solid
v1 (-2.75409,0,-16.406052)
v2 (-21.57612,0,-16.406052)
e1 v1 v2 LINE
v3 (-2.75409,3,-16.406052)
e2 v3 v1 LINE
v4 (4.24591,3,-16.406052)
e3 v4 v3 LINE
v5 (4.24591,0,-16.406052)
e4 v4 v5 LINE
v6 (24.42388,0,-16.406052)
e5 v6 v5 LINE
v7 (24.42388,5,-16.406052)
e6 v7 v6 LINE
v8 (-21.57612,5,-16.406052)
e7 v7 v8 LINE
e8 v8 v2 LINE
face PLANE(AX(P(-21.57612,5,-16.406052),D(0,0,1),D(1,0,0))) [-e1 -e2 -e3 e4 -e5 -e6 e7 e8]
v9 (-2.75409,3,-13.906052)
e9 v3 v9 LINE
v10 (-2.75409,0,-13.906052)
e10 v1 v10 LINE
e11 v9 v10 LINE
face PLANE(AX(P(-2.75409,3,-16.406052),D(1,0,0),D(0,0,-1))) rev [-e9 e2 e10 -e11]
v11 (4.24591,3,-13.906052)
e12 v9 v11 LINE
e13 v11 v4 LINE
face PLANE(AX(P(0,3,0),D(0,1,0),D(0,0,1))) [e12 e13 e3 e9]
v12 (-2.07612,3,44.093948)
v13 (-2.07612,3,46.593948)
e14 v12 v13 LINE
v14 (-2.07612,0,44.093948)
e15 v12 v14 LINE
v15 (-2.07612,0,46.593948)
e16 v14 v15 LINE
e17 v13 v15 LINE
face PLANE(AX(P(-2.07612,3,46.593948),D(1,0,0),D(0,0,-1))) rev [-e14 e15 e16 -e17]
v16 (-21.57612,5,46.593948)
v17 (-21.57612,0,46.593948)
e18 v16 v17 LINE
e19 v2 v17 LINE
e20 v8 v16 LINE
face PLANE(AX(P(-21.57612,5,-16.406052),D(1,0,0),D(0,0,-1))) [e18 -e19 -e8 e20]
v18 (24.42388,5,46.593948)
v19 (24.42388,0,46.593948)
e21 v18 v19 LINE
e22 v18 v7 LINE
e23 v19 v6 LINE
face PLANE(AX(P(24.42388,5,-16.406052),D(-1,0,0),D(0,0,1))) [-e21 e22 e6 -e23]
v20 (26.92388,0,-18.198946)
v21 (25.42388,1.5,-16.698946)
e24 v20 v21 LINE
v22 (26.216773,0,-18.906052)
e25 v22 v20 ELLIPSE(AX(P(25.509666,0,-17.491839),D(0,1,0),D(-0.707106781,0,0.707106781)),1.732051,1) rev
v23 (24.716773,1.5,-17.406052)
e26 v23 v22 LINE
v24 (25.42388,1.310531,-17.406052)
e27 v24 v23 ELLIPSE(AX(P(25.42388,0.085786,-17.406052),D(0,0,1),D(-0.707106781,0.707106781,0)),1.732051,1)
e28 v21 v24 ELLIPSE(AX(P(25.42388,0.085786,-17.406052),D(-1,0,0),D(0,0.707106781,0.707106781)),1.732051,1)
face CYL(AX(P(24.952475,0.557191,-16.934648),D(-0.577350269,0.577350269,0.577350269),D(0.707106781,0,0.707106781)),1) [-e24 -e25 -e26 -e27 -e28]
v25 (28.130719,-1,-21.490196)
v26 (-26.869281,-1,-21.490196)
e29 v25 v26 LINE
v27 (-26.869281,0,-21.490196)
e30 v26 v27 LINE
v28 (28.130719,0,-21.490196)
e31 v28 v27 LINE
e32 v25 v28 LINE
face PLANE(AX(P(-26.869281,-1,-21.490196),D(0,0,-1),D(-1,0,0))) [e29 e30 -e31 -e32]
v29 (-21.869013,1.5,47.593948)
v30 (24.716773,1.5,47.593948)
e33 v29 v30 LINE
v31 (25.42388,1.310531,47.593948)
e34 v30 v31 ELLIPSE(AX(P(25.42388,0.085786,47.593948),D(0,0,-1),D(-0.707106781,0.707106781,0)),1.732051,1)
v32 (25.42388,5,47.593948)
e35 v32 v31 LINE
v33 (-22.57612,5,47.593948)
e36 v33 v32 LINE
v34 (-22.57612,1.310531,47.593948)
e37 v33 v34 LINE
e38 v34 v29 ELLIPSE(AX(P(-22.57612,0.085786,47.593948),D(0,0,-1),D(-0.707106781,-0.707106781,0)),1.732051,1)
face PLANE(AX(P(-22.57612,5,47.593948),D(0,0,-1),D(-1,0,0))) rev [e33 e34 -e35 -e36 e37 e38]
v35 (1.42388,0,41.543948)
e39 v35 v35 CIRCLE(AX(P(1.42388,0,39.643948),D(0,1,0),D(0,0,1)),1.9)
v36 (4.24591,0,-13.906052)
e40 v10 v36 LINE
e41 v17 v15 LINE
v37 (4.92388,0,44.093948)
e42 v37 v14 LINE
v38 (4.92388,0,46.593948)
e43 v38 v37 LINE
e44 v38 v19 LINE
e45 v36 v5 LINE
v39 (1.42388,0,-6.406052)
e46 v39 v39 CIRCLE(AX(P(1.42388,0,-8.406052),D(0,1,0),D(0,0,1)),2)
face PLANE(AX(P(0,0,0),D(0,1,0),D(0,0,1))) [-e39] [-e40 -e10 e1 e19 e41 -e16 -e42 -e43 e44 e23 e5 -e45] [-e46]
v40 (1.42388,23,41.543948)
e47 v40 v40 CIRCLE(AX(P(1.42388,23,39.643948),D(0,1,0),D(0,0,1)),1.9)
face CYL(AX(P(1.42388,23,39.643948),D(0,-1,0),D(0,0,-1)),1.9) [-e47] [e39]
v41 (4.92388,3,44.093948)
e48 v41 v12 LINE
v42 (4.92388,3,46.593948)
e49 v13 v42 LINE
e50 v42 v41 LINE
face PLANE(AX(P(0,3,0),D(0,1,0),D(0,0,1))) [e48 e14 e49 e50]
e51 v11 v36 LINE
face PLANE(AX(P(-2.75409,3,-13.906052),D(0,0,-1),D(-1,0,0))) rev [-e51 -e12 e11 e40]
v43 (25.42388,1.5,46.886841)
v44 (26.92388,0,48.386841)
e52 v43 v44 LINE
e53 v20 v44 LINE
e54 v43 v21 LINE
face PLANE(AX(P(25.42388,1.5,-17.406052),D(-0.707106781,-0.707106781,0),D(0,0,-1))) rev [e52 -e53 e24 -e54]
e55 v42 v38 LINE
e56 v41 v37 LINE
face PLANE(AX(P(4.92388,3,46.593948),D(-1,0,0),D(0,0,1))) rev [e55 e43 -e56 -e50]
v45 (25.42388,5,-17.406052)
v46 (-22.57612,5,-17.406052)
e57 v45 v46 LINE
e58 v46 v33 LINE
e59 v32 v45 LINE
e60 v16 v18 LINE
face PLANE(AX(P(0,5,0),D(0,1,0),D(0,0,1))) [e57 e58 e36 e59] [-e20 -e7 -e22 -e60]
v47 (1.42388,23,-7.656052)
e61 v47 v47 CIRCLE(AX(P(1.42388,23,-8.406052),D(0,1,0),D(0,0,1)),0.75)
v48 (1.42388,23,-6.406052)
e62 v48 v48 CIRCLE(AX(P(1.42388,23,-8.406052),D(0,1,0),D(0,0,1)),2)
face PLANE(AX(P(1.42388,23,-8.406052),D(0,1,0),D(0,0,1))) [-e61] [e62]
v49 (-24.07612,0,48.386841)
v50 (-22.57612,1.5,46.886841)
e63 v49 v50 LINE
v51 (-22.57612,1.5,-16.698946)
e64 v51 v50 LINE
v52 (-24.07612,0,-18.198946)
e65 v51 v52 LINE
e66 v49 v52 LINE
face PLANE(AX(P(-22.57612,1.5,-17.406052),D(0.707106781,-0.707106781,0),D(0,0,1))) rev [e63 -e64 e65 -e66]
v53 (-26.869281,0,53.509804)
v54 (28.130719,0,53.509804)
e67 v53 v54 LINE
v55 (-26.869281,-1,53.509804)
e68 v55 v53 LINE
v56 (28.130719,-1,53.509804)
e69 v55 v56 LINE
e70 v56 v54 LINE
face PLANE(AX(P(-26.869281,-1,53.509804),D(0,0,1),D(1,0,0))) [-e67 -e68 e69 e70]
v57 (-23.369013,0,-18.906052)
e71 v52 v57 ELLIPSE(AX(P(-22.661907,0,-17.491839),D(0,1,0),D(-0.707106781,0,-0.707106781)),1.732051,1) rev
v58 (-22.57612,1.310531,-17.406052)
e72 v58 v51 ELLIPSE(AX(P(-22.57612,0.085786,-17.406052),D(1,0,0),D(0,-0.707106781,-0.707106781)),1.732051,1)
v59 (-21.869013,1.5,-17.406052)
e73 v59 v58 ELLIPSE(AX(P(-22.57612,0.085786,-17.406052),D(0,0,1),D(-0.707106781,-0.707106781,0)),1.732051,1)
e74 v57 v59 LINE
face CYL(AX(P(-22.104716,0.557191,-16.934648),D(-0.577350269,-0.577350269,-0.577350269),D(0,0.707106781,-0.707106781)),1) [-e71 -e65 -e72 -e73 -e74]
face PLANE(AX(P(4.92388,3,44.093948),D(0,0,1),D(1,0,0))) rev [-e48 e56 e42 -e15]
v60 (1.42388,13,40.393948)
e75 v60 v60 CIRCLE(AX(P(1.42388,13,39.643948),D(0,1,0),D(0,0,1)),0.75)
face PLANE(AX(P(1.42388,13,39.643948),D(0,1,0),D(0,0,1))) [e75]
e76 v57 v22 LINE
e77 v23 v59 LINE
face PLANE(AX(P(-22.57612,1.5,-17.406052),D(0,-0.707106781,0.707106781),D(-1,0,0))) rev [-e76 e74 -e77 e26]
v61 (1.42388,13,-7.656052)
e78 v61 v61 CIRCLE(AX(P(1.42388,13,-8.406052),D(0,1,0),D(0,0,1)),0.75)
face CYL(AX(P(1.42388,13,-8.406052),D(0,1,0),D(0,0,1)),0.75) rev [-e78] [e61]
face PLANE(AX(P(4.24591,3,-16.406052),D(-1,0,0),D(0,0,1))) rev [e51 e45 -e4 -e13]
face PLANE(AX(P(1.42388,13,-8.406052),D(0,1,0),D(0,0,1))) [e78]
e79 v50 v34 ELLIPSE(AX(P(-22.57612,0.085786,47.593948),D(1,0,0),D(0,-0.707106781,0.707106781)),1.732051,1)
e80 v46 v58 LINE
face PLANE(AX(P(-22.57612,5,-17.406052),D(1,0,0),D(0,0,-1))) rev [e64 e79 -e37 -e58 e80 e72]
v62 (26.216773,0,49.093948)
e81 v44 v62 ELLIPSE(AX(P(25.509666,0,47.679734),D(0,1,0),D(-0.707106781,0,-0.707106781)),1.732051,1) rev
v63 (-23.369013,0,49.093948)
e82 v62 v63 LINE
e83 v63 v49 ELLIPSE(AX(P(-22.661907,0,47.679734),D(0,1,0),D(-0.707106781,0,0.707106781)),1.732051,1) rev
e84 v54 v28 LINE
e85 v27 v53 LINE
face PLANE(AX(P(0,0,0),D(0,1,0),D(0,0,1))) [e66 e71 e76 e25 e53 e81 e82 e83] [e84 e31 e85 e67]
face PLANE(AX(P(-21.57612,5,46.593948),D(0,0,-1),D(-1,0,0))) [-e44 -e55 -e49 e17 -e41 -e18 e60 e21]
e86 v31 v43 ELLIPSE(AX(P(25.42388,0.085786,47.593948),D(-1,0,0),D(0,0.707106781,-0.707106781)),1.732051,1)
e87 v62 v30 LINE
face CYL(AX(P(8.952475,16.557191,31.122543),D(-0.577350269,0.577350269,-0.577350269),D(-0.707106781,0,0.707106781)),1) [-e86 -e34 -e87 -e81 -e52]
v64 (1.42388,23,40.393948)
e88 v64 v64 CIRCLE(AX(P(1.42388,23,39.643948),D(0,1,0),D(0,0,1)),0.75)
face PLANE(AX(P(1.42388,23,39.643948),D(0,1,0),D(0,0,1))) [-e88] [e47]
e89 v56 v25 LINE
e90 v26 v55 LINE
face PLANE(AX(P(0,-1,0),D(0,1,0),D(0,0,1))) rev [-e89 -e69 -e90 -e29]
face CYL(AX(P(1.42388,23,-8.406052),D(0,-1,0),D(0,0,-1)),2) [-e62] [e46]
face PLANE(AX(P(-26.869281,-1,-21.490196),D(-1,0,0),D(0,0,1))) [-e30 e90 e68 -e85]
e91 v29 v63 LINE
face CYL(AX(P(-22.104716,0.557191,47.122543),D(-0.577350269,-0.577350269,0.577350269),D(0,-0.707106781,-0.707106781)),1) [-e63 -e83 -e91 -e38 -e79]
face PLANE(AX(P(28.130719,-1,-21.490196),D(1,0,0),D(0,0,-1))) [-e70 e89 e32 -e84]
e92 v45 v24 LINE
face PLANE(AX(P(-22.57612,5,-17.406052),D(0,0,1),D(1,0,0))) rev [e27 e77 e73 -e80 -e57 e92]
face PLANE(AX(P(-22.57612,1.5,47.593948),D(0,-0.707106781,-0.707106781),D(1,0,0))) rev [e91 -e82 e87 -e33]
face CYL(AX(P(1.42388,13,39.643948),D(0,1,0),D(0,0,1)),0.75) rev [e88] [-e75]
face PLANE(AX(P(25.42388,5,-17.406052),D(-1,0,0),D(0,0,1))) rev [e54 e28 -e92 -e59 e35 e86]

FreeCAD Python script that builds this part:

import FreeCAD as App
import Part
import Sketcher
from FreeCAD import Vector
Q = App.Units.Quantity


def edges_at(feature, points):
    """Names of the edges that pass closest to the given points."""
    edges = feature.Shape.Edges
    near = lambda p: min(range(len(edges)), key=lambda i: edges[i].distToShape(Part.Vertex(*p))[0])
    return sorted({f"Edge{near(p) + 1}" for p in points})

doc = App.newDocument("Part")
body = doc.addObject("PartDesign::Body", "Body")

sketch1 = doc.addObject("Sketcher::SketchObject", "Sketch")
body.addObject(sketch1)
sketch1.AttachmentSupport = (doc.XZ_Plane, [""])
sketch1.MapMode = "FlatFace"
sketch1.addGeometry(Part.LineSegment(Vector(-27, -21, 0), Vector(-27, 54, 0)), False)
sketch1.addGeometry(Part.LineSegment(Vector(-27, 54, 0), Vector(28, 54, 0)), False)
sketch1.addGeometry(Part.LineSegment(Vector(28, 54, 0), Vector(28, -21, 0)), False)
sketch1.addGeometry(Part.LineSegment(Vector(28, -21, 0), Vector(-27, -21, 0)), False)
sketch1.addConstraint(Sketcher.Constraint("Coincident", 0, 2, 1, 1))
sketch1.addConstraint(Sketcher.Constraint("Coincident", 1, 2, 2, 1))
sketch1.addConstraint(Sketcher.Constraint("Coincident", 2, 2, 3, 1))
sketch1.addConstraint(Sketcher.Constraint("Coincident", 3, 2, 0, 1))
sketch1.addConstraint(Sketcher.Constraint("Vertical", 0))
sketch1.addConstraint(Sketcher.Constraint("Horizontal", 1))
sketch1.addConstraint(Sketcher.Constraint("Vertical", 2))
sketch1.addConstraint(Sketcher.Constraint("Horizontal", 3))
sketch1.addConstraint(Sketcher.Constraint("DistanceX", 1, 1, 1, 2, Q("55 mm")))
sketch1.addConstraint(Sketcher.Constraint("DistanceY", 0, 1, 0, 2, Q("75 mm")))
sketch1.addConstraint(Sketcher.Constraint("DistanceX", 0, 2, -1, 1, Q("26.869281 mm")))
sketch1.addConstraint(Sketcher.Constraint("DistanceY", -1, 1, 0, 2, Q("53.509804 mm")))
pad1 = doc.addObject("PartDesign::Pad", "Pad")
body.addObject(pad1)
pad1.Profile = sketch1
pad1.Length = 1

sketch2 = doc.addObject("Sketcher::SketchObject", "Sketch001")
body.addObject(sketch2)
sketch2.AttachmentSupport = (doc.XZ_Plane, [""])
sketch2.MapMode = "FlatFace"
sketch2.addGeometry(Part.LineSegment(Vector(-23, -17, 0), Vector(-23, 48, 0)), False)
sketch2.addGeometry(Part.LineSegment(Vector(-23, 48, 0), Vector(25, 48, 0)), False)
sketch2.addGeometry(Part.LineSegment(Vector(25, 48, 0), Vector(25, -17, 0)), False)
sketch2.addGeometry(Part.LineSegment(Vector(25, -17, 0), Vector(-23, -17, 0)), False)
sketch2.addGeometry(Part.LineSegment(Vector(24, 47, 0), Vector(-22, 47, 0)), False)
sketch2.addGeometry(Part.LineSegment(Vector(-22, 47, 0), Vector(-22, -16, 0)), False)
sketch2.addGeometry(Part.LineSegment(Vector(-22, -16, 0), Vector(24, -16, 0)), False)
sketch2.addGeometry(Part.LineSegment(Vector(24, -16, 0), Vector(24, 47, 0)), False)
sketch2.addConstraint(Sketcher.Constraint("Coincident", 0, 2, 1, 1))
sketch2.addConstraint(Sketcher.Constraint("Coincident", 1, 2, 2, 1))
sketch2.addConstraint(Sketcher.Constraint("Coincident", 2, 2, 3, 1))
sketch2.addConstraint(Sketcher.Constraint("Coincident", 3, 2, 0, 1))
sketch2.addConstraint(Sketcher.Constraint("Coincident", 4, 2, 5, 1))
sketch2.addConstraint(Sketcher.Constraint("Coincident", 5, 2, 6, 1))
sketch2.addConstraint(Sketcher.Constraint("Coincident", 6, 2, 7, 1))
sketch2.addConstraint(Sketcher.Constraint("Coincident", 7, 2, 4, 1))
sketch2.addConstraint(Sketcher.Constraint("Vertical", 0))
sketch2.addConstraint(Sketcher.Constraint("Horizontal", 1))
sketch2.addConstraint(Sketcher.Constraint("Vertical", 2))
sketch2.addConstraint(Sketcher.Constraint("Horizontal", 3))
sketch2.addConstraint(Sketcher.Constraint("Horizontal", 4))
sketch2.addConstraint(Sketcher.Constraint("Vertical", 5))
sketch2.addConstraint(Sketcher.Constraint("Horizontal", 6))
sketch2.addConstraint(Sketcher.Constraint("Vertical", 7))
sketch2.addConstraint(Sketcher.Constraint("DistanceX", 1, 1, 1, 2, Q("48 mm")))
sketch2.addConstraint(Sketcher.Constraint("DistanceX", 4, 2, 4, 1, Q("46 mm")))
sketch2.addConstraint(Sketcher.Constraint("DistanceY", 0, 1, 0, 2, Q("65 mm")))
sketch2.addConstraint(Sketcher.Constraint("DistanceY", 5, 2, 5, 1, Q("63 mm")))
sketch2.addConstraint(Sketcher.Constraint("DistanceX", 0, 2, 4, 2, Q("1 mm")))
sketch2.addConstraint(Sketcher.Constraint("DistanceY", 4, 2, 0, 2, Q("1 mm")))
sketch2.addConstraint(Sketcher.Constraint("DistanceX", 0, 2, -1, 1, Q("22.57612 mm")))
sketch2.addConstraint(Sketcher.Constraint("DistanceY", -1, 1, 0, 2, Q("47.593948 mm")))
pad2 = doc.addObject("PartDesign::Pad", "Pad001")
body.addObject(pad2)
pad2.Profile = sketch2
pad2.Length = 5
pad2.Reversed = True

sketch3 = doc.addObject("Sketcher::SketchObject", "Sketch002")
body.addObject(sketch3)
sketch3.AttachmentSupport = (doc.XZ_Plane, [""])
sketch3.MapMode = "FlatFace"
sketch3.addGeometry(Part.LineSegment(Vector(-2.1, 44.1, 0), Vector(-2.1, 46.6, 0)), False)
sketch3.addGeometry(Part.LineSegment(Vector(-2.1, 46.6, 0), Vector(4.9, 46.6, 0)), False)
sketch3.addGeometry(Part.LineSegment(Vector(4.9, 46.6, 0), Vector(4.9, 44.1, 0)), False)
sketch3.addGeometry(Part.LineSegment(Vector(4.9, 44.1, 0), Vector(-2.1, 44.1, 0)), False)
sketch3.addGeometry(Part.LineSegment(Vector(-2.8, -16.4, 0), Vector(-2.8, -13.9, 0)), False)
sketch3.addGeometry(Part.LineSegment(Vector(-2.8, -13.9, 0), Vector(4.2, -13.9, 0)), False)
sketch3.addGeometry(Part.LineSegment(Vector(4.2, -13.9, 0), Vector(4.2, -16.4, 0)), False)
sketch3.addGeometry(Part.LineSegment(Vector(4.2, -16.4, 0), Vector(-2.8, -16.4, 0)), False)
sketch3.addConstraint(Sketcher.Constraint("Coincident", 0, 2, 1, 1))
sketch3.addConstraint(Sketcher.Constraint("Coincident", 1, 2, 2, 1))
sketch3.addConstraint(Sketcher.Constraint("Coincident", 2, 2, 3, 1))
sketch3.addConstraint(Sketcher.Constraint("Coincident", 3, 2, 0, 1))
sketch3.addConstraint(Sketcher.Constraint("Coincident", 4, 2, 5, 1))
sketch3.addConstraint(Sketcher.Constraint("Coincident", 5, 2, 6, 1))
sketch3.addConstraint(Sketcher.Constraint("Coincident", 6, 2, 7, 1))
sketch3.addConstraint(Sketcher.Constraint("Coincident", 7, 2, 4, 1))
sketch3.addConstraint(Sketcher.Constraint("Vertical", 0))
sketch3.addConstraint(Sketcher.Constraint("Horizontal", 1))
sketch3.addConstraint(Sketcher.Constraint("Vertical", 2))
sketch3.addConstraint(Sketcher.Constraint("Horizontal", 3))
sketch3.addConstraint(Sketcher.Constraint("Vertical", 4))
sketch3.addConstraint(Sketcher.Constraint("Horizontal", 5))
sketch3.addConstraint(Sketcher.Constraint("Vertical", 6))
sketch3.addConstraint(Sketcher.Constraint("Horizontal", 7))
sketch3.addConstraint(Sketcher.Constraint("Equal", 3, 5))
sketch3.addConstraint(Sketcher.Constraint("Equal", 2, 4))
sketch3.addConstraint(Sketcher.Constraint("DistanceX", 1, 1, 1, 2, Q("7 mm")))
sketch3.addConstraint(Sketcher.Constraint("DistanceY", 0, 1, 0, 2, Q("2.5 mm")))
sketch3.addConstraint(Sketcher.Constraint("DistanceY", 4, 2, 3, 2, Q("58 mm")))
sketch3.addConstraint(Sketcher.Constraint("DistanceX", 0, 2, -1, 1, Q("2.07612 mm")))
sketch3.addConstraint(Sketcher.Constraint("DistanceX", 4, 2, -1, 1, Q("2.75409 mm")))
sketch3.addConstraint(Sketcher.Constraint("DistanceY", -1, 1, 0, 2, Q("46.593948 mm")))
pad3 = doc.addObject("PartDesign::Pad", "Pad002")
body.addObject(pad3)
pad3.Profile = sketch3
pad3.Length = 3
pad3.Reversed = True

sketch4 = doc.addObject("Sketcher::SketchObject", "Sketch003")
body.addObject(sketch4)
sketch4.AttachmentSupport = (doc.XZ_Plane, [""])
sketch4.MapMode = "FlatFace"
sketch4.addGeometry(Part.Circle(Vector(1.4, 39.6, 0), Vector(0, 0, 1), 1.9), False)
sketch4.addConstraint(Sketcher.Constraint("Diameter", 0, Q("3.8 mm")))
sketch4.addConstraint(Sketcher.Constraint("DistanceX", -1, 1, 0, 3, Q("1.42388 mm")))
sketch4.addConstraint(Sketcher.Constraint("DistanceY", -1, 1, 0, 3, Q("39.643948 mm")))
pad4 = doc.addObject("PartDesign::Pad", "Pad003")
body.addObject(pad4)
pad4.Profile = sketch4
pad4.Length = 23
pad4.Reversed = True

sketch5 = doc.addObject("Sketcher::SketchObject", "Sketch004")
body.addObject(sketch5)
sketch5.AttachmentSupport = (doc.XZ_Plane, [""])
sketch5.MapMode = "FlatFace"
sketch5.AttachmentOffset = App.Placement(Vector(0, 0, -23), App.Rotation())
sketch5.addGeometry(Part.Circle(Vector(1.4, 39.6, 0), Vector(0, 0, 1), 0.8), False)
sketch5.addConstraint(Sketcher.Constraint("Diameter", 0, Q("1.5 mm")))
sketch5.addConstraint(Sketcher.Constraint("DistanceX", -1, 1, 0, 3, Q("1.42388 mm")))
sketch5.addConstraint(Sketcher.Constraint("DistanceY", -1, 1, 0, 3, Q("39.643948 mm")))
pocket1 = doc.addObject("PartDesign::Pocket", "Pocket")
body.addObject(pocket1)
pocket1.Profile = sketch5
pocket1.Length = 10
pocket1.Reversed = True

sketch6 = doc.addObject("Sketcher::SketchObject", "Sketch005")
body.addObject(sketch6)
sketch6.AttachmentSupport = (doc.XZ_Plane, [""])
sketch6.MapMode = "FlatFace"
sketch6.addGeometry(Part.Circle(Vector(1.4, -8.4, 0), Vector(0, 0, 1), 2), False)
sketch6.addConstraint(Sketcher.Constraint("Diameter", 0, Q("4 mm")))
sketch6.addConstraint(Sketcher.Constraint("DistanceX", -1, 1, 0, 3, Q("1.42388 mm")))
sketch6.addConstraint(Sketcher.Constraint("DistanceY", 0, 3, -1, 1, Q("8.406052 mm")))
pad5 = doc.addObject("PartDesign::Pad", "Pad004")
body.addObject(pad5)
pad5.Profile = sketch6
pad5.Length = 23
pad5.Reversed = True

sketch7 = doc.addObject("Sketcher::SketchObject", "Sketch006")
body.addObject(sketch7)
sketch7.AttachmentSupport = (doc.XZ_Plane, [""])
sketch7.MapMode = "FlatFace"
sketch7.AttachmentOffset = App.Placement(Vector(0, 0, -23), App.Rotation())
sketch7.addGeometry(Part.Circle(Vector(1.4, -8.4, 0), Vector(0, 0, 1), 0.8), False)
sketch7.addConstraint(Sketcher.Constraint("Diameter", 0, Q("1.5 mm")))
sketch7.addConstraint(Sketcher.Constraint("DistanceX", -1, 1, 0, 3, Q("1.42388 mm")))
sketch7.addConstraint(Sketcher.Constraint("DistanceY", 0, 3, -1, 1, Q("8.406052 mm")))
pocket2 = doc.addObject("PartDesign::Pocket", "Pocket001")
body.addObject(pocket2)
pocket2.Profile = sketch7
pocket2.Length = 10
pocket2.Reversed = True
doc.recompute()

chamfer = doc.addObject("PartDesign::Chamfer", "Chamfer")
body.addObject(chamfer)
chamfer.Base = (pocket2, edges_at(pocket2, [
    (-22.576, 0, 15.094),
    (1.424, 0, 47.594),
    (25.424, 0, 15.094),
    (1.424, 0, -17.406),
]))
chamfer.Size = 1.5
doc.recompute()

fillet = doc.addObject("PartDesign::Fillet", "Fillet")
body.addObject(fillet)
fillet.Base = (chamfer, edges_at(chamfer, [
    (-23.326, 0.75, -18.156),
    (26.174, 0.75, -18.156),
    (-23.326, 0.75, 48.344),
    (26.174, 0.75, 48.344),
]))
fillet.Radius = 1

doc.recompute()
